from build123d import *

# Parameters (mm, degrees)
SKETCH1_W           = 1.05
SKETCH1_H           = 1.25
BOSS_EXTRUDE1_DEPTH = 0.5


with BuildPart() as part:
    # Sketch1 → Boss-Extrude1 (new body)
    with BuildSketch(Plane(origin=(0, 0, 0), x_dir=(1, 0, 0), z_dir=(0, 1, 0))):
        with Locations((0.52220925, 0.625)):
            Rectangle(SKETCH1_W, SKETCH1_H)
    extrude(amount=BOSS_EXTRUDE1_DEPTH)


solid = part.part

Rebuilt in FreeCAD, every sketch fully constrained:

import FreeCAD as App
import Part
import Sketcher


def add_polygon(sketch, points):
    """Adds a closed chain of lines whose ends are joined by coincident constraints."""
    first, n = sketch.GeometryCount, len(points)
    for a, b in zip(points, points[1:] + points[:1]):
        sketch.addGeometry(Part.LineSegment(App.Vector(*a, 0), App.Vector(*b, 0)), False)
    for i in range(n):
        sketch.addConstraint(Sketcher.Constraint("Coincident", first + i, 2, first + (i + 1) % n, 1))

doc = App.newDocument("Part")
body = doc.addObject("PartDesign::Body", "Body")

# Sketch on XZ plane
sketch1 = body.newObject("Sketcher::SketchObject", "Sketch")
sketch1.AttachmentSupport = (doc.getObject("XZ_Plane"), [""])
sketch1.MapMode = "FlatFace"
add_polygon(sketch1, [(-0.002791, -1.25), (-0.002791, 0), (1.047209, 0), (1.047209, -1.25)])  # lines 0-3
sketch1.addConstraint([
    Sketcher.Constraint("Vertical", 0),
    Sketcher.Constraint("Horizontal", 1),
    Sketcher.Constraint("Vertical", 2),
    Sketcher.Constraint("Horizontal", 3),
    Sketcher.Constraint("PointOnObject", 0, 2, -1),
    Sketcher.Constraint("DistanceX", 1, 1, 1, 2, 1.05),
    Sketcher.Constraint("DistanceY", 0, 1, 0, 2, 1.25),
    Sketcher.Constraint("DistanceX", 0, 2, -1, 1, 0.002791),
])
pad1 = body.newObject("PartDesign::Pad", "Pad")
pad1.Profile = sketch1
pad1.Length = 0.5
pad1.Reversed = True

doc.recompute()
